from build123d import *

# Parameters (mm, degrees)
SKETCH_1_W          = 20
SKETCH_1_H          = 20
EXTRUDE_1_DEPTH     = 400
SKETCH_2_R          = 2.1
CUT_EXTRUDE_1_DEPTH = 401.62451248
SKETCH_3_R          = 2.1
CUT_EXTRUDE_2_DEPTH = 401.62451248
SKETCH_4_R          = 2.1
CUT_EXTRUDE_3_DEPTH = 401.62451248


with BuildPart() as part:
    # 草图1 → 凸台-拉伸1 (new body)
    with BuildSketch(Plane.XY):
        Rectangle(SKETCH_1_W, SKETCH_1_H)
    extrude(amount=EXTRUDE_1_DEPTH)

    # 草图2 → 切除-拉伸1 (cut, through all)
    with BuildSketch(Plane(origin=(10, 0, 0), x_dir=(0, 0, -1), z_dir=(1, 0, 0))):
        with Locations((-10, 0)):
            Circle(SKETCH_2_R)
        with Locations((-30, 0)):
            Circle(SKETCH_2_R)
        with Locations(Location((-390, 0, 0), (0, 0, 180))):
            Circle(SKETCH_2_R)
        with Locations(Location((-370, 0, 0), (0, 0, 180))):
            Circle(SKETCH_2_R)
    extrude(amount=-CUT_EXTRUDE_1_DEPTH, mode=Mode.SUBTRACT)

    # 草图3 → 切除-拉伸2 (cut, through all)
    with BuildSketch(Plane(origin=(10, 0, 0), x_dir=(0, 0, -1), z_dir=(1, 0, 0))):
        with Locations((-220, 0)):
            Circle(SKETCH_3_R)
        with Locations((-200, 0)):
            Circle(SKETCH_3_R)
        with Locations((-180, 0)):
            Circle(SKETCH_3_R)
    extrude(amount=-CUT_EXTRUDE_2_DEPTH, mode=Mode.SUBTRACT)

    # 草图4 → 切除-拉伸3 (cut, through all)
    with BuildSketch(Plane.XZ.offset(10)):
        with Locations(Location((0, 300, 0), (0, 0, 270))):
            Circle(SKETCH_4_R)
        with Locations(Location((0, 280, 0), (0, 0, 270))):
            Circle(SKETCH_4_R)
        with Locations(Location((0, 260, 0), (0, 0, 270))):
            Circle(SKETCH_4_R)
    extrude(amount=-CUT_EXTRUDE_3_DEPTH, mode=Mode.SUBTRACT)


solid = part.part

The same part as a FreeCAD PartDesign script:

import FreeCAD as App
import Part
import Sketcher

V = App.Vector
Q = App.Units.Quantity


def add_polygon(sketch, points):
    """Adds a closed chain of lines whose ends are joined by coincident constraints."""
    first, n = sketch.GeometryCount, len(points)
    for a, b in zip(points, points[1:] + points[:1]):
        sketch.addGeometry(Part.LineSegment(App.Vector(*a, 0), App.Vector(*b, 0)), False)
    for i in range(n):
        sketch.addConstraint(Sketcher.Constraint("Coincident", first + i, 2, first + (i + 1) % n, 1))

doc = App.newDocument("Part")
body = doc.addObject("PartDesign::Body", "Body")

sketch1 = doc.addObject("Sketcher::SketchObject", "Sketch")
body.addObject(sketch1)
sketch1.AttachmentSupport = (doc.XY_Plane, [""])
sketch1.MapMode = "FlatFace"
add_polygon(sketch1, [(-10, 10), (-10, -10), (10, -10), (10, 10)])
sketch1.addConstraint([
    Sketcher.Constraint("Vertical", 0),
    Sketcher.Constraint("Horizontal", 1),
    Sketcher.Constraint("Vertical", 2),
    Sketcher.Constraint("Horizontal", 3),
    Sketcher.Constraint("Symmetric", 0, 2, 2, 2, -1, 1),
    Sketcher.Constraint("Equal", 3, 0),
    Sketcher.Constraint("DistanceX", 1, 1, 1, 2, Q("20 mm")),
])
pad1 = doc.addObject("PartDesign::Pad", "Pad")
body.addObject(pad1)
pad1.Profile = sketch1
pad1.Length = 400

sketch2 = doc.addObject("Sketcher::SketchObject", "Sketch001")
body.addObject(sketch2)
sketch2.AttachmentSupport = (doc.YZ_Plane, [""])
sketch2.MapMode = "FlatFace"
sketch2.AttachmentOffset = App.Placement(V(0, 0, 10), App.Rotation())
sketch2.addGeometry([
    Part.Circle(V(0, 10, 0), V(0, 0, 1), 2.1),
    Part.Circle(V(0, 30, 0), V(0, 0, 1), 2.1),
    Part.Circle(V(0, 390, 0), V(0, 0, 1), 2.1),
    Part.Circle(V(0, 370, 0), V(0, 0, 1), 2.1),
], False)
sketch2.addConstraint([
    Sketcher.Constraint("Equal", 0, 1),
    Sketcher.Constraint("Equal", 1, 2),
    Sketcher.Constraint("Equal", 2, 3),
    Sketcher.Constraint("PointOnObject", 0, 3, -2),
    Sketcher.Constraint("PointOnObject", 1, 3, -2),
    Sketcher.Constraint("PointOnObject", 2, 3, -2),
    Sketcher.Constraint("PointOnObject", 3, 3, -2),
    Sketcher.Constraint("Diameter", 0, Q("4.2 mm")),
    Sketcher.Constraint("DistanceY", -1, 1, 0, 3, Q("10 mm")),
    Sketcher.Constraint("DistanceY", -1, 1, 1, 3, Q("30 mm")),
    Sketcher.Constraint("DistanceY", -1, 1, 2, 3, Q("390 mm")),
    Sketcher.Constraint("DistanceY", -1, 1, 3, 3, Q("370 mm")),
])
pocket1 = doc.addObject("PartDesign::Pocket", "Pocket")
body.addObject(pocket1)
pocket1.Profile = sketch2
pocket1.Type = "ThroughAll"

sketch3 = doc.addObject("Sketcher::SketchObject", "Sketch002")
body.addObject(sketch3)
sketch3.AttachmentSupport = (doc.YZ_Plane, [""])
sketch3.MapMode = "FlatFace"
sketch3.AttachmentOffset = App.Placement(V(0, 0, 10), App.Rotation())
sketch3.addGeometry([
    Part.Circle(V(0, 220, 0), V(0, 0, 1), 2.1),
    Part.Circle(V(0, 200, 0), V(0, 0, 1), 2.1),
    Part.Circle(V(0, 180, 0), V(0, 0, 1), 2.1),
], False)
sketch3.addConstraint([
    Sketcher.Constraint("Equal", 0, 1),
    Sketcher.Constraint("Equal", 1, 2),
    Sketcher.Constraint("PointOnObject", 0, 3, -2),
    Sketcher.Constraint("PointOnObject", 1, 3, -2),
    Sketcher.Constraint("PointOnObject", 2, 3, -2),
    Sketcher.Constraint("Diameter", 0, Q("4.2 mm")),
    Sketcher.Constraint("DistanceY", -1, 1, 0, 3, Q("220 mm")),
    Sketcher.Constraint("DistanceY", -1, 1, 1, 3, Q("200 mm")),
    Sketcher.Constraint("DistanceY", -1, 1, 2, 3, Q("180 mm")),
])
pocket2 = doc.addObject("PartDesign::Pocket", "Pocket001")
body.addObject(pocket2)
pocket2.Profile = sketch3
pocket2.Type = "ThroughAll"

sketch4 = doc.addObject("Sketcher::SketchObject", "Sketch003")
body.addObject(sketch4)
sketch4.AttachmentSupport = (doc.XZ_Plane, [""])
sketch4.MapMode = "FlatFace"
sketch4.AttachmentOffset = App.Placement(V(0, 0, 10), App.Rotation())
sketch4.addGeometry([
    Part.Circle(V(0, 300, 0), V(0, 0, 1), 2.1),
    Part.Circle(V(0, 280, 0), V(0, 0, 1), 2.1),
    Part.Circle(V(0, 260, 0), V(0, 0, 1), 2.1),
], False)
sketch4.addConstraint([
    Sketcher.Constraint("Equal", 0, 1),
    Sketcher.Constraint("Equal", 1, 2),
    Sketcher.Constraint("PointOnObject", 0, 3, -2),
    Sketcher.Constraint("PointOnObject", 1, 3, -2),
    Sketcher.Constraint("PointOnObject", 2, 3, -2),
    Sketcher.Constraint("Diameter", 0, Q("4.2 mm")),
    Sketcher.Constraint("DistanceY", -1, 1, 0, 3, Q("300 mm")),
    Sketcher.Constraint("DistanceY", -1, 1, 1, 3, Q("280 mm")),
    Sketcher.Constraint("DistanceY", -1, 1, 2, 3, Q("260 mm")),
])
pocket3 = doc.addObject("PartDesign::Pocket", "Pocket002")
body.addObject(pocket3)
pocket3.Profile = sketch4
pocket3.Type = "ThroughAll"

doc.recompute()
